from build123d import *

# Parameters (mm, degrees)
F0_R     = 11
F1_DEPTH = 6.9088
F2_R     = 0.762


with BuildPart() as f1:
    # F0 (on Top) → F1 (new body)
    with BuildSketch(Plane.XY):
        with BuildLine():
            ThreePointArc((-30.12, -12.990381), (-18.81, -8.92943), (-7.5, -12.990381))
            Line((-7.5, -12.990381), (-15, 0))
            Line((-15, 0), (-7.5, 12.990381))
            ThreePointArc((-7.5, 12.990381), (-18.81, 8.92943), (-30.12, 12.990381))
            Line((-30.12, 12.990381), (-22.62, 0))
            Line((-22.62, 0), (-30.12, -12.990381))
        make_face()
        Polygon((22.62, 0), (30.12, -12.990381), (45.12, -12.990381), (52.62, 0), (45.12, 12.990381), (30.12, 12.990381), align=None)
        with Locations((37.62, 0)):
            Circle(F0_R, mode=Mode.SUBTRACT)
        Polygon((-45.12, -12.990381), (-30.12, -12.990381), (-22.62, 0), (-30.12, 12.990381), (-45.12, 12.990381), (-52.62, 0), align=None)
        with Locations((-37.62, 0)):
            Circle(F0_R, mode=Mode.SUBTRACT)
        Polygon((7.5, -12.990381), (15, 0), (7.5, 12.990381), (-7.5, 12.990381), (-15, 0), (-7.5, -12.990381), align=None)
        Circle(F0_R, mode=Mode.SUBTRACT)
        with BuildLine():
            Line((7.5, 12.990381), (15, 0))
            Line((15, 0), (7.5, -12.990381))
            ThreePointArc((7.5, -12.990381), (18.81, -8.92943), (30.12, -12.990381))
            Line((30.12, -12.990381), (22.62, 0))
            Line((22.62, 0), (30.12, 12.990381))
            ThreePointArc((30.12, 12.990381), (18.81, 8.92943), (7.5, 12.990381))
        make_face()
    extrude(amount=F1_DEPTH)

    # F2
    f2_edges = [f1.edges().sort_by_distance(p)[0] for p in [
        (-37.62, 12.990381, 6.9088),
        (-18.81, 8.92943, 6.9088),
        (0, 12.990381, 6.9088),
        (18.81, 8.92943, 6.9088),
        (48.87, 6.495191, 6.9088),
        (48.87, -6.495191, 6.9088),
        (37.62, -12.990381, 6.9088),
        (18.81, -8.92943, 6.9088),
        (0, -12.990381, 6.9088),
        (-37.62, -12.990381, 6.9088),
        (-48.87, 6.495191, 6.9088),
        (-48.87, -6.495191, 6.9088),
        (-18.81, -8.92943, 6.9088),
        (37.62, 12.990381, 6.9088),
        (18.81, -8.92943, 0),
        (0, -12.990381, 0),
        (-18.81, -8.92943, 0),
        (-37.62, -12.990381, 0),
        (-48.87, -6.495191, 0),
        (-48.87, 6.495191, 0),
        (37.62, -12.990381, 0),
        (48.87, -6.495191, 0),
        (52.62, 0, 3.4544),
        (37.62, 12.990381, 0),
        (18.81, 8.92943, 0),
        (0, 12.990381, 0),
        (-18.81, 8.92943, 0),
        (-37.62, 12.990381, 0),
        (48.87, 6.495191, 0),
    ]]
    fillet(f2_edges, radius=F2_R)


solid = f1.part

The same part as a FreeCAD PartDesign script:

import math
import FreeCAD as App
import Part
import Sketcher

V = App.Vector
Q = App.Units.Quantity


def edges_at(feature, points):
    """Names of the edges that pass closest to the given points."""
    edges = feature.Shape.Edges
    near = lambda p: min(range(len(edges)), key=lambda i: edges[i].distToShape(Part.Vertex(*p))[0])
    return sorted({f"Edge{near(p) + 1}" for p in points})

doc = App.newDocument("Part")
body = doc.addObject("PartDesign::Body", "Body")

sketch1 = body.newObject("Sketcher::SketchObject", "Sketch")
sketch1.AttachmentSupport = (doc.getObject("XY_Plane"), [""])
sketch1.MapMode = "FlatFace"
sketch1.addGeometry([
    Part.ArcOfCircle(Part.Circle(V(-19, -27, 0), V(0, 0, 1), 18), math.radians(50), math.radians(130)),
    Part.LineSegment(V(-8, -13, 0), V(8, -13, 0)),
    Part.ArcOfCircle(Part.Circle(V(19, -27, 0), V(0, 0, 1), 18), math.radians(50), math.radians(130)),
    Part.LineSegment(V(30, -13, 0), V(45, -13, 0)),
    Part.LineSegment(V(45, -13, 0), V(53, 0, 0)),
    Part.LineSegment(V(53, 0, 0), V(45, 13, 0)),
    Part.LineSegment(V(45, 13, 0), V(30, 13, 0)),
    Part.ArcOfCircle(Part.Circle(V(19, 27, 0), V(0, 0, 1), 18), math.radians(-130), math.radians(-50)),
    Part.LineSegment(V(8, 13, 0), V(-8, 13, 0)),
    Part.ArcOfCircle(Part.Circle(V(-19, 27, 0), V(0, 0, 1), 18), math.radians(-130), math.radians(-50)),
    Part.LineSegment(V(-30, 13, 0), V(-45, 13, 0)),
    Part.LineSegment(V(-45, 13, 0), V(-53, 0, 0)),
    Part.LineSegment(V(-53, 0, 0), V(-45, -13, 0)),
    Part.LineSegment(V(-45, -13, 0), V(-30, -13, 0)),
    Part.Circle(V(-38, 0, 0), V(0, 0, 1), 11),
    Part.Circle(V(0, 0, 0), V(0, 0, 1), 11),
    Part.Circle(V(38, 0, 0), V(0, 0, 1), 11),
], False)
sketch1.addConstraint([
    Sketcher.Constraint("Coincident", 0, 1, 1, 1),
    Sketcher.Constraint("Coincident", 1, 2, 2, 2),
    Sketcher.Constraint("Coincident", 2, 1, 3, 1),
    Sketcher.Constraint("Coincident", 3, 2, 4, 1),
    Sketcher.Constraint("Coincident", 4, 2, 5, 1),
    Sketcher.Constraint("Coincident", 5, 2, 6, 1),
    Sketcher.Constraint("Coincident", 6, 2, 7, 2),
    Sketcher.Constraint("Coincident", 7, 1, 8, 1),
    Sketcher.Constraint("Coincident", 8, 2, 9, 2),
    Sketcher.Constraint("Coincident", 9, 1, 10, 1),
    Sketcher.Constraint("Coincident", 10, 2, 11, 1),
    Sketcher.Constraint("Coincident", 11, 2, 12, 1),
    Sketcher.Constraint("Coincident", 12, 2, 13, 1),
    Sketcher.Constraint("Coincident", 13, 2, 0, 2),
    Sketcher.Constraint("Horizontal", 1),
    Sketcher.Constraint("Horizontal", 3),
    Sketcher.Constraint("Horizontal", 6),
    Sketcher.Constraint("Horizontal", 8),
    Sketcher.Constraint("Horizontal", 10),
    Sketcher.Constraint("Horizontal", 13),
    Sketcher.Constraint("Coincident", 15, 3, -1, 1),
    Sketcher.Constraint("Equal", 0, 2),
    Sketcher.Constraint("Equal", 2, 7),
    Sketcher.Constraint("Equal", 7, 9),
    Sketcher.Constraint("Equal", 14, 15),
    Sketcher.Constraint("Equal", 15, 16),
    Sketcher.Constraint("Symmetric", 0, 3, 7, 3, -1, 1),
    Sketcher.Constraint("Symmetric", 2, 3, 9, 3, -1, 1),
    Sketcher.Constraint("Symmetric", 14, 3, 16, 3, -1, 1),
    Sketcher.Constraint("Symmetric", 3, 2, 10, 2, -1, 1),
    Sketcher.Constraint("Symmetric", 4, 2, 11, 2, -1, 1),
    Sketcher.Constraint("Symmetric", 5, 2, 12, 2, -1, 1),
    Sketcher.Constraint("Symmetric", 0, 3, 2, 3, -2),
    Sketcher.Constraint("Symmetric", 5, 2, 10, 2, -2),
    Sketcher.Constraint("PointOnObject", 14, 3, -1),
    Sketcher.Constraint("PointOnObject", 4, 2, -1),
    Sketcher.Constraint("Horizontal", 1, 2, 2, 1),
    Sketcher.Constraint("Horizontal", 6, 2, 7, 1),
    Sketcher.Constraint("Equal", 1, 3),
    Sketcher.Constraint("Radius", 0, Q("0.7 in")),
    Sketcher.Constraint("Angle", 4, Q("60 deg")),
    Sketcher.Constraint("Diameter", 14, Q("22 mm")),
    Sketcher.Constraint("DistanceX", 1, 1, 1, 2, Q("15 mm")),
    Sketcher.Constraint("Distance", 4, Q("15 mm")),
    Sketcher.Constraint("DistanceX", 0, 3, -1, 1, Q("18.81 mm")),
    Sketcher.Constraint("DistanceX", 14, 3, -1, 1, Q("37.62 mm")),
])
pad1 = body.newObject("PartDesign::Pad", "Pad")
pad1.Profile = sketch1
pad1.Length = Q("0.272 in")
doc.recompute()

fillet = body.newObject("PartDesign::Fillet", "Fillet")
fillet.Base = (pad1, edges_at(pad1, [
    (-37.62, 12.99, 6.909),
    (-18.81, 8.929, 6.909),
    (0, 12.99, 6.909),
    (18.81, 8.929, 6.909),
    (48.87, 6.495, 6.909),
    (48.87, -6.495, 6.909),
    (37.62, -12.99, 6.909),
    (18.81, -8.929, 6.909),
    (0, -12.99, 6.909),
    (-37.62, -12.99, 6.909),
    (-48.87, 6.495, 6.909),
    (-48.87, -6.495, 6.909),
    (-18.81, -8.929, 6.909),
    (37.62, 12.99, 6.909),
    (18.81, -8.929, 0),
    (0, -12.99, 0),
    (-18.81, -8.929, 0),
    (-37.62, -12.99, 0),
    (-48.87, -6.495, 0),
    (-48.87, 6.495, 0),
    (37.62, -12.99, 0),
    (48.87, -6.495, 0),
    (52.62, 0, 3.454),
    (37.62, 12.99, 0),
    (18.81, 8.929, 0),
    (0, 12.99, 0),
    (-18.81, 8.929, 0),
    (-37.62, 12.99, 0),
    (48.87, 6.495, 0),
]))
fillet.Radius = Q("0.03 in")

doc.recompute()
